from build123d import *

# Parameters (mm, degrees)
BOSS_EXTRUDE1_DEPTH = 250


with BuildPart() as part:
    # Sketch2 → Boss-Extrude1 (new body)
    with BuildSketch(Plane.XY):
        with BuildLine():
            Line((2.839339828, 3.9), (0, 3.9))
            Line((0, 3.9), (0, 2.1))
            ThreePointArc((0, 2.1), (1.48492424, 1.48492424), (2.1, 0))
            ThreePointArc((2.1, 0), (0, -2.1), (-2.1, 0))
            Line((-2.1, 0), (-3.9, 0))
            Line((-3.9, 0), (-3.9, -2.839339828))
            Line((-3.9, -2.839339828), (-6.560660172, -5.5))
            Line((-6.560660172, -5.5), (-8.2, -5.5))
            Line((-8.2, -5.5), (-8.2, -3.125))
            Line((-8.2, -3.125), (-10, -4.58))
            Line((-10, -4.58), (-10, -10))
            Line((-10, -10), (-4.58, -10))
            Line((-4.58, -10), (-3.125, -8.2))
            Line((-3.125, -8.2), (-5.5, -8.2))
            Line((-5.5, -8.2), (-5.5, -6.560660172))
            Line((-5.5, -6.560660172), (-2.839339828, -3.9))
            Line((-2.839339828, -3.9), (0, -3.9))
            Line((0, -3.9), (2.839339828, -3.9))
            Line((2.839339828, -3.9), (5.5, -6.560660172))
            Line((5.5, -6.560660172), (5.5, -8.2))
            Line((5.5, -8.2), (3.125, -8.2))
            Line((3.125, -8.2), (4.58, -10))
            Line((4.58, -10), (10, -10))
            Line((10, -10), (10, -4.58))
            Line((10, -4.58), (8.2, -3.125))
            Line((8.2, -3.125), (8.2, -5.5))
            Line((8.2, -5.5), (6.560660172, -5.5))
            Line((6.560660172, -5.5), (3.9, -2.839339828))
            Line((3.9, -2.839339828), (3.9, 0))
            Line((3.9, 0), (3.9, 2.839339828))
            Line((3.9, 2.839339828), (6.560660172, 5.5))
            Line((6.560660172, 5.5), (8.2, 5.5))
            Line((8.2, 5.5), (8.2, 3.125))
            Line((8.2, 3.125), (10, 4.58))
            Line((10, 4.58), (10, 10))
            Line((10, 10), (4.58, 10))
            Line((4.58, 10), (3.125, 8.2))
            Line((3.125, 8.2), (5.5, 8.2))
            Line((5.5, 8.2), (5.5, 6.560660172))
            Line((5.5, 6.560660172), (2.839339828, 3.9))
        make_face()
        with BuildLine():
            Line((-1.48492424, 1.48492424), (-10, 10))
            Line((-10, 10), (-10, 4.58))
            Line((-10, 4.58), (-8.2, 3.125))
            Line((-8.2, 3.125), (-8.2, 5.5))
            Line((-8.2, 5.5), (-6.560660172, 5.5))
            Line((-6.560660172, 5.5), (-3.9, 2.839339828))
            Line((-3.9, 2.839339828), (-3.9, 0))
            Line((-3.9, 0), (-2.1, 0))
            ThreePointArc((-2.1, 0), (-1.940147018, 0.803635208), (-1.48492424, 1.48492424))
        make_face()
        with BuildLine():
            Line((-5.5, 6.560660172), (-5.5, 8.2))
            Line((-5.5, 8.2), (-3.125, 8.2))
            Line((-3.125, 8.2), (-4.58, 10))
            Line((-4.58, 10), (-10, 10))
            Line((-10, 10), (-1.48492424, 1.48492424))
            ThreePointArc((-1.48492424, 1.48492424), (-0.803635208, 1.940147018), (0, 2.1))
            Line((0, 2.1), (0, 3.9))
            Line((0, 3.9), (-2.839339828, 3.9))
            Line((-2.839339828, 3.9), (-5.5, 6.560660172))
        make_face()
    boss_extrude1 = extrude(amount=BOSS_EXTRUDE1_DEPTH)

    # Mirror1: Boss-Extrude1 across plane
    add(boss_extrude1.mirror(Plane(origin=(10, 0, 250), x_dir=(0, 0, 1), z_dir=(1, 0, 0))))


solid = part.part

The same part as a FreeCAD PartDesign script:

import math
import FreeCAD as App
import Part
import Sketcher
from FreeCAD import Vector
Q = App.Units.Quantity

doc = App.newDocument("Part")
body = doc.addObject("PartDesign::Body", "Body")

# Sketch on XY plane
sketch1 = body.newObject("Sketcher::SketchObject", "Sketch")
sketch1.AttachmentSupport = (doc.getObject("XY_Plane"), [""])
sketch1.MapMode = "FlatFace"
sketch1.addGeometry([
    Part.LineSegment(Vector(2.8, 3.9, 0), Vector(-2.8, 3.9, 0)),  # 0
    Part.LineSegment(Vector(-2.8, 3.9, 0), Vector(-5.5, 6.6, 0)),  # 1
    Part.LineSegment(Vector(-5.5, 6.6, 0), Vector(-5.5, 8.2, 0)),  # 2
    Part.LineSegment(Vector(-5.5, 8.2, 0), Vector(-3.1, 8.2, 0)),  # 3
    Part.LineSegment(Vector(-3.1, 8.2, 0), Vector(-4.6, 10, 0)),  # 4
    Part.LineSegment(Vector(-4.6, 10, 0), Vector(-10, 10, 0)),  # 5
    Part.LineSegment(Vector(-10, 10, 0), Vector(-10, 4.6, 0)),  # 6
    Part.LineSegment(Vector(-10, 4.6, 0), Vector(-8.2, 3.1, 0)),  # 7
    Part.LineSegment(Vector(-8.2, 3.1, 0), Vector(-8.2, 5.5, 0)),  # 8
    Part.LineSegment(Vector(-8.2, 5.5, 0), Vector(-6.6, 5.5, 0)),  # 9
    Part.LineSegment(Vector(-6.6, 5.5, 0), Vector(-3.9, 2.8, 0)),  # 10
    Part.LineSegment(Vector(-3.9, 2.8, 0), Vector(-3.9, -2.8, 0)),  # 11
    Part.LineSegment(Vector(-3.9, -2.8, 0), Vector(-6.6, -5.5, 0)),  # 12
    Part.LineSegment(Vector(-6.6, -5.5, 0), Vector(-8.2, -5.5, 0)),  # 13
    Part.LineSegment(Vector(-8.2, -5.5, 0), Vector(-8.2, -3.1, 0)),  # 14
    Part.LineSegment(Vector(-8.2, -3.1, 0), Vector(-10, -4.6, 0)),  # 15
    Part.LineSegment(Vector(-10, -4.6, 0), Vector(-10, -10, 0)),  # 16
    Part.LineSegment(Vector(-10, -10, 0), Vector(-4.6, -10, 0)),  # 17
    Part.LineSegment(Vector(-4.6, -10, 0), Vector(-3.1, -8.2, 0)),  # 18
    Part.LineSegment(Vector(-3.1, -8.2, 0), Vector(-5.5, -8.2, 0)),  # 19
    Part.LineSegment(Vector(-5.5, -8.2, 0), Vector(-5.5, -6.6, 0)),  # 20
    Part.LineSegment(Vector(-5.5, -6.6, 0), Vector(-2.8, -3.9, 0)),  # 21
    Part.LineSegment(Vector(-2.8, -3.9, 0), Vector(2.8, -3.9, 0)),  # 22
    Part.LineSegment(Vector(2.8, -3.9, 0), Vector(5.5, -6.6, 0)),  # 23
    Part.LineSegment(Vector(5.5, -6.6, 0), Vector(5.5, -8.2, 0)),  # 24
    Part.LineSegment(Vector(5.5, -8.2, 0), Vector(3.1, -8.2, 0)),  # 25
    Part.LineSegment(Vector(3.1, -8.2, 0), Vector(4.6, -10, 0)),  # 26
    Part.LineSegment(Vector(4.6, -10, 0), Vector(10, -10, 0)),  # 27
    Part.LineSegment(Vector(10, -10, 0), Vector(10, -4.6, 0)),  # 28
    Part.LineSegment(Vector(10, -4.6, 0), Vector(8.2, -3.1, 0)),  # 29
    Part.LineSegment(Vector(8.2, -3.1, 0), Vector(8.2, -5.5, 0)),  # 30
    Part.LineSegment(Vector(8.2, -5.5, 0), Vector(6.6, -5.5, 0)),  # 31
    Part.LineSegment(Vector(6.6, -5.5, 0), Vector(3.9, -2.8, 0)),  # 32
    Part.LineSegment(Vector(3.9, -2.8, 0), Vector(3.9, 2.8, 0)),  # 33
    Part.LineSegment(Vector(3.9, 2.8, 0), Vector(6.6, 5.5, 0)),  # 34
    Part.LineSegment(Vector(6.6, 5.5, 0), Vector(8.2, 5.5, 0)),  # 35
    Part.LineSegment(Vector(8.2, 5.5, 0), Vector(8.2, 3.1, 0)),  # 36
    Part.LineSegment(Vector(8.2, 3.1, 0), Vector(10, 4.6, 0)),  # 37
    Part.LineSegment(Vector(10, 4.6, 0), Vector(10, 10, 0)),  # 38
    Part.LineSegment(Vector(10, 10, 0), Vector(4.6, 10, 0)),  # 39
    Part.LineSegment(Vector(4.6, 10, 0), Vector(3.1, 8.2, 0)),  # 40
    Part.LineSegment(Vector(3.1, 8.2, 0), Vector(5.5, 8.2, 0)),  # 41
    Part.LineSegment(Vector(5.5, 8.2, 0), Vector(5.5, 6.6, 0)),  # 42
    Part.LineSegment(Vector(5.5, 6.6, 0), Vector(2.8, 3.9, 0)),  # 43
    Part.ArcOfCircle(Part.Circle(Vector(0, 0, 0), Vector(0, 0, 1), 2.1), math.radians(0), math.radians(90)),  # 44
    Part.ArcOfCircle(Part.Circle(Vector(0, 0, 0), Vector(0, 0, 1), 2.1), math.radians(180), math.radians(360)),  # 45
    Part.ArcOfCircle(Part.Circle(Vector(0, 0, 0), Vector(0, 0, 1), 2.1), math.radians(135), math.radians(180)),  # 46
    Part.ArcOfCircle(Part.Circle(Vector(0, 0, 0), Vector(0, 0, 1), 2.1), math.radians(90), math.radians(135)),  # 47
], False)
sketch1.addConstraint([
    Sketcher.Constraint("Coincident", 0, 2, 1, 1),
    Sketcher.Constraint("Coincident", 1, 2, 2, 1),
    Sketcher.Constraint("Coincident", 2, 2, 3, 1),
    Sketcher.Constraint("Coincident", 3, 2, 4, 1),
    Sketcher.Constraint("Coincident", 4, 2, 5, 1),
    Sketcher.Constraint("Coincident", 5, 2, 6, 1),
    Sketcher.Constraint("Coincident", 6, 2, 7, 1),
    Sketcher.Constraint("Coincident", 7, 2, 8, 1),
    Sketcher.Constraint("Coincident", 8, 2, 9, 1),
    Sketcher.Constraint("Coincident", 9, 2, 10, 1),
    Sketcher.Constraint("Coincident", 10, 2, 11, 1),
    Sketcher.Constraint("Coincident", 11, 2, 12, 1),
    Sketcher.Constraint("Coincident", 12, 2, 13, 1),
    Sketcher.Constraint("Coincident", 13, 2, 14, 1),
    Sketcher.Constraint("Coincident", 14, 2, 15, 1),
    Sketcher.Constraint("Coincident", 15, 2, 16, 1),
    Sketcher.Constraint("Coincident", 16, 2, 17, 1),
    Sketcher.Constraint("Coincident", 17, 2, 18, 1),
    Sketcher.Constraint("Coincident", 18, 2, 19, 1),
    Sketcher.Constraint("Coincident", 19, 2, 20, 1),
    Sketcher.Constraint("Coincident", 20, 2, 21, 1),
    Sketcher.Constraint("Coincident", 21, 2, 22, 1),
    Sketcher.Constraint("Coincident", 22, 2, 23, 1),
    Sketcher.Constraint("Coincident", 23, 2, 24, 1),
    Sketcher.Constraint("Coincident", 24, 2, 25, 1),
    Sketcher.Constraint("Coincident", 25, 2, 26, 1),
    Sketcher.Constraint("Coincident", 26, 2, 27, 1),
    Sketcher.Constraint("Coincident", 27, 2, 28, 1),
    Sketcher.Constraint("Coincident", 28, 2, 29, 1),
    Sketcher.Constraint("Coincident", 29, 2, 30, 1),
    Sketcher.Constraint("Coincident", 30, 2, 31, 1),
    Sketcher.Constraint("Coincident", 31, 2, 32, 1),
    Sketcher.Constraint("Coincident", 32, 2, 33, 1),
    Sketcher.Constraint("Coincident", 33, 2, 34, 1),
    Sketcher.Constraint("Coincident", 34, 2, 35, 1),
    Sketcher.Constraint("Coincident", 35, 2, 36, 1),
    Sketcher.Constraint("Coincident", 36, 2, 37, 1),
    Sketcher.Constraint("Coincident", 37, 2, 38, 1),
    Sketcher.Constraint("Coincident", 38, 2, 39, 1),
    Sketcher.Constraint("Coincident", 39, 2, 40, 1),
    Sketcher.Constraint("Coincident", 40, 2, 41, 1),
    Sketcher.Constraint("Coincident", 41, 2, 42, 1),
    Sketcher.Constraint("Coincident", 42, 2, 43, 1),
    Sketcher.Constraint("Coincident", 43, 2, 0, 1),
    Sketcher.Constraint("Tangent", 44, 1, 45, 2),
    Sketcher.Constraint("Tangent", 45, 1, 46, 2),
    Sketcher.Constraint("Tangent", 46, 1, 47, 2),
    Sketcher.Constraint("Tangent", 47, 1, 44, 2),
    Sketcher.Constraint("Horizontal", 0),
    Sketcher.Constraint("Vertical", 2),
    Sketcher.Constraint("Horizontal", 3),
    Sketcher.Constraint("Horizontal", 5),
    Sketcher.Constraint("Vertical", 6),
    Sketcher.Constraint("Vertical", 8),
    Sketcher.Constraint("Horizontal", 9),
    Sketcher.Constraint("Vertical", 11),
    Sketcher.Constraint("Horizontal", 13),
    Sketcher.Constraint("Vertical", 14),
    Sketcher.Constraint("Vertical", 16),
    Sketcher.Constraint("Horizontal", 17),
    Sketcher.Constraint("Horizontal", 19),
    Sketcher.Constraint("Vertical", 20),
    Sketcher.Constraint("Horizontal", 22),
    Sketcher.Constraint("Vertical", 24),
    Sketcher.Constraint("Horizontal", 25),
    Sketcher.Constraint("Horizontal", 27),
    Sketcher.Constraint("Vertical", 28),
    Sketcher.Constraint("Vertical", 30),
    Sketcher.Constraint("Horizontal", 31),
    Sketcher.Constraint("Vertical", 33),
    Sketcher.Constraint("Horizontal", 35),
    Sketcher.Constraint("Vertical", 36),
    Sketcher.Constraint("Vertical", 38),
    Sketcher.Constraint("Horizontal", 39),
    Sketcher.Constraint("Horizontal", 41),
    Sketcher.Constraint("Vertical", 42),
    Sketcher.Constraint("Coincident", 44, 3, -1, 1),
    Sketcher.Constraint("Equal", 44, 45),
    Sketcher.Constraint("Symmetric", 0, 2, 22, 2, -1, 1),
    Sketcher.Constraint("Symmetric", 1, 2, 23, 2, -1, 1),
    Sketcher.Constraint("Symmetric", 3, 2, 25, 2, -1, 1),
    Sketcher.Constraint("Symmetric", 4, 2, 26, 2, -1, 1),
    Sketcher.Constraint("Symmetric", 6, 2, 28, 2, -1, 1),
    Sketcher.Constraint("Symmetric", 7, 2, 29, 2, -1, 1),
    Sketcher.Constraint("Symmetric", 9, 2, 31, 2, -1, 1),
    Sketcher.Constraint("Symmetric", 10, 2, 32, 2, -1, 1),
    Sketcher.Constraint("Symmetric", 12, 2, 34, 2, -1, 1),
    Sketcher.Constraint("Symmetric", 14, 2, 36, 2, -1, 1),
    Sketcher.Constraint("Symmetric", 15, 2, 37, 2, -1, 1),
    Sketcher.Constraint("Symmetric", 17, 2, 39, 2, -1, 1),
    Sketcher.Constraint("Symmetric", 18, 2, 40, 2, -1, 1),
    Sketcher.Constraint("Symmetric", 20, 2, 42, 2, -1, 1),
    Sketcher.Constraint("Symmetric", 20, 2, 23, 2, -2),
    Sketcher.Constraint("Symmetric", 18, 2, 25, 2, -2),
    Sketcher.Constraint("Symmetric", 17, 2, 26, 2, -2),
    Sketcher.Constraint("Symmetric", 15, 2, 28, 2, -2),
    Sketcher.Constraint("Symmetric", 14, 2, 29, 2, -2),
    Sketcher.Constraint("Symmetric", 12, 2, 31, 2, -2),
    Sketcher.Constraint("PointOnObject", 44, 1, -1),
    Sketcher.Constraint("PointOnObject", 45, 1, -1),
    Sketcher.Constraint("PointOnObject", 47, 1, -2),
    Sketcher.Constraint("Parallel", 1, 10),
    Sketcher.Constraint("Perpendicular", 10, 12),
    Sketcher.Constraint("Perpendicular", 4, 15),
    Sketcher.Constraint("Parallel", 12, 21),
    Sketcher.Constraint("Perpendicular", 32, 34),
    Sketcher.Constraint("Parallel", 34, 43),
    Sketcher.Constraint("Horizontal", 11, 2, 32, 2),
    Sketcher.Constraint("Equal", 35, 2),
    Sketcher.Constraint("Equal", 39, 6),
    Sketcher.Constraint("Equal", 41, 8),
    Sketcher.Constraint("Equal", 22, 11),
    Sketcher.Constraint("Equal", 4, 7),
    Sketcher.Constraint("Equal", 1, 10),
    Sketcher.Constraint("Radius", 44, Q("2.1 mm")),
    Sketcher.Constraint("DistanceY", -1, 1, 4, 2, Q("10 mm")),
    Sketcher.Constraint("DistanceX", 5, 2, 5, 1, Q("5.42 mm")),
    Sketcher.Constraint("DistanceY", -1, 1, 0, 2, Q("3.9 mm")),
    Sketcher.Constraint("DistanceX", 1, 2, -1, 1, Q("5.5 mm")),
    Sketcher.Constraint("DistanceY", -1, 1, 2, 2, Q("8.2 mm")),
    Sketcher.Constraint("DistanceX", 3, 1, 3, 2, Q("2.375 mm")),
    Sketcher.Constraint("DistanceX", 0, 2, 0, 1, Q("5.67868 mm")),
    Sketcher.Constraint("DistanceX", 46, 1, -1, 1, Q("1.484924 mm")),
])
pad1 = body.newObject("PartDesign::Pad", "Pad")
pad1.Profile = sketch1
pad1.Length = 250
doc.recompute()

datumplane = body.newObject("PartDesign::Plane", "DatumPlane")
datumplane.AttachmentSupport = (doc.getObject("YZ_Plane"), [""])
datumplane.MapMode = "FlatFace"
datumplane.AttachmentOffset = App.Placement(Vector(0, 0, 10), App.Rotation())
mirrored = body.newObject("PartDesign::Mirrored", "Mirrored")
mirrored.Originals = [pad1]
mirrored.MirrorPlane = (datumplane, [""])
body.Tip = mirrored

doc.recompute()
